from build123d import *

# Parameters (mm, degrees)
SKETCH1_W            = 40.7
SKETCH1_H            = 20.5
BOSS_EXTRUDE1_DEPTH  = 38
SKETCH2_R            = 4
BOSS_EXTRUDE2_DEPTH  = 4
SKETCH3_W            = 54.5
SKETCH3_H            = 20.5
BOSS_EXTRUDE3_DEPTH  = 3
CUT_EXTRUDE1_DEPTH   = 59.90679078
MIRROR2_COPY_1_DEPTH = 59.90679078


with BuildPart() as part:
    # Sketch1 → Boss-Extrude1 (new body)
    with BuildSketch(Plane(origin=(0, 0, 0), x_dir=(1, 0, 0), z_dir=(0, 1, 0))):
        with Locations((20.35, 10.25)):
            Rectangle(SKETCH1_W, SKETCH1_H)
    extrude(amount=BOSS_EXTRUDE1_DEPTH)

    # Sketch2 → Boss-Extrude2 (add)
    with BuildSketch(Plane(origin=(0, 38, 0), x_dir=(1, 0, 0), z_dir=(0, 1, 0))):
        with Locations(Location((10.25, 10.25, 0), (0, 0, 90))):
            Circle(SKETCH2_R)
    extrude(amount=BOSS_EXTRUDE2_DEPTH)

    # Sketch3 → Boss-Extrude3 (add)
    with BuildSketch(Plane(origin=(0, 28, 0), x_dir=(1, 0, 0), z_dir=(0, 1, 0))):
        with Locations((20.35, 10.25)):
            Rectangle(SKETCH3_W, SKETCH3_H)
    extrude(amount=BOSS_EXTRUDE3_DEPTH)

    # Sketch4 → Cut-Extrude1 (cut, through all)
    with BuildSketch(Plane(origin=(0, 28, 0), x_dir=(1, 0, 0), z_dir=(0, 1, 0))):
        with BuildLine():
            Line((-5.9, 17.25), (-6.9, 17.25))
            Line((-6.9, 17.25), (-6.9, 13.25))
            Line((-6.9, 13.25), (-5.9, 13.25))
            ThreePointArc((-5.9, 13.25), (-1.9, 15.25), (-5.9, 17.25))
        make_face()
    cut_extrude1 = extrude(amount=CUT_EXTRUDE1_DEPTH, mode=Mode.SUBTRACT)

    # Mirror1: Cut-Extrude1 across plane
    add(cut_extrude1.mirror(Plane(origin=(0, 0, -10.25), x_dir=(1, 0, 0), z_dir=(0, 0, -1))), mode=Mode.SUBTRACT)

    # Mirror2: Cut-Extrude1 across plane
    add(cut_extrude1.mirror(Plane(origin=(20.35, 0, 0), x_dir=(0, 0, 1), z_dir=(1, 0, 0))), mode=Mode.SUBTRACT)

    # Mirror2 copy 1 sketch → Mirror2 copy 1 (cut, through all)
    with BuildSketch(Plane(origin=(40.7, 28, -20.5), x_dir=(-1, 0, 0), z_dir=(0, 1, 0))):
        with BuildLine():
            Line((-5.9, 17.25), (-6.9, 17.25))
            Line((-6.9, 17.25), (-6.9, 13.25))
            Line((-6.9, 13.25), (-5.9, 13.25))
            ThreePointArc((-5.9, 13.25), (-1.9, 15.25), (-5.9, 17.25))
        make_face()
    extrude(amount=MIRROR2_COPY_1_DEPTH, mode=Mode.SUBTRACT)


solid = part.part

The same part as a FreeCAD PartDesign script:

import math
import FreeCAD as App
import Part
import Sketcher


def add_polygon(sketch, points):
    """Adds a closed chain of lines whose ends are joined by coincident constraints."""
    first, n = sketch.GeometryCount, len(points)
    for a, b in zip(points, points[1:] + points[:1]):
        sketch.addGeometry(Part.LineSegment(App.Vector(*a, 0), App.Vector(*b, 0)), False)
    for i in range(n):
        sketch.addConstraint(Sketcher.Constraint("Coincident", first + i, 2, first + (i + 1) % n, 1))

doc = App.newDocument("Part")
body = doc.addObject("PartDesign::Body", "Body")

# Sketch on XZ plane
sketch1 = body.newObject("Sketcher::SketchObject", "Sketch")
sketch1.AttachmentSupport = (doc.getObject("XZ_Plane"), [""])
sketch1.MapMode = "FlatFace"
add_polygon(sketch1, [(0, -20), (0, 0), (41, 0), (41, -20)])  # lines 0-3
sketch1.addConstraint([
    Sketcher.Constraint("Vertical", 0),
    Sketcher.Constraint("Horizontal", 1),
    Sketcher.Constraint("Vertical", 2),
    Sketcher.Constraint("Horizontal", 3),
    Sketcher.Constraint("Coincident", 0, 2, -1, 1),
    Sketcher.Constraint("DistanceX", 1, 1, 1, 2, 40.7),
    Sketcher.Constraint("DistanceY", 0, 1, 0, 2, 20.5),
])
pad1 = body.newObject("PartDesign::Pad", "Pad")
pad1.Profile = sketch1
pad1.Length = 38
pad1.Reversed = True

# Sketch on XZ plane
sketch2 = body.newObject("Sketcher::SketchObject", "Sketch001")
sketch2.AttachmentSupport = (doc.getObject("XZ_Plane"), [""])
sketch2.MapMode = "FlatFace"
sketch2.AttachmentOffset = App.Placement(App.Vector(0, 0, -38), App.Rotation())
sketch2.addGeometry(Part.Circle(App.Vector(10.2, -10.2, 0), App.Vector(0, 0, 1), 4), False)
sketch2.addConstraint([
    Sketcher.Constraint("Diameter", 0, 8.0),
    Sketcher.Constraint("DistanceX", -1, 1, 0, 3, 10.25),
    Sketcher.Constraint("DistanceY", 0, 3, -1, 1, 10.25),
])
pad2 = body.newObject("PartDesign::Pad", "Pad001")
pad2.Profile = sketch2
pad2.Length = 4
pad2.Reversed = True

# Sketch on XZ plane
sketch3 = body.newObject("Sketcher::SketchObject", "Sketch002")
sketch3.AttachmentSupport = (doc.getObject("XZ_Plane"), [""])
sketch3.MapMode = "FlatFace"
sketch3.AttachmentOffset = App.Placement(App.Vector(0, 0, -28), App.Rotation())
add_polygon(sketch3, [(-7, -20), (-7, 0), (48, 0), (48, -20)])  # lines 0-3
sketch3.addConstraint([
    Sketcher.Constraint("Vertical", 0),
    Sketcher.Constraint("Horizontal", 1),
    Sketcher.Constraint("Vertical", 2),
    Sketcher.Constraint("Horizontal", 3),
    Sketcher.Constraint("PointOnObject", 0, 2, -1),
    Sketcher.Constraint("DistanceX", 1, 1, 1, 2, 54.5),
    Sketcher.Constraint("DistanceY", 0, 1, 0, 2, 20.5),
    Sketcher.Constraint("DistanceX", 0, 2, -1, 1, 6.9),
])
pad3 = body.newObject("PartDesign::Pad", "Pad002")
pad3.Profile = sketch3
pad3.Length = 3
pad3.Reversed = True

# Sketch on XZ plane
sketch4 = body.newObject("Sketcher::SketchObject", "Sketch003")
sketch4.AttachmentSupport = (doc.getObject("XZ_Plane"), [""])
sketch4.MapMode = "FlatFace"
sketch4.AttachmentOffset = App.Placement(App.Vector(0, 0, -28), App.Rotation())
sketch4.addGeometry([
    Part.LineSegment(App.Vector(-5.9, -17.2, 0), App.Vector(-6.9, -17.2, 0)),
    Part.LineSegment(App.Vector(-6.9, -17.2, 0), App.Vector(-6.9, -13.2, 0)),
    Part.LineSegment(App.Vector(-6.9, -13.2, 0), App.Vector(-5.9, -13.2, 0)),
    Part.ArcOfCircle(Part.Circle(App.Vector(-4.4, -15.2, 0), App.Vector(0, 0, 1), 2.5), math.radians(-127), math.radians(127)),
], False)
sketch4.addConstraint([
    Sketcher.Constraint("Coincident", 0, 2, 1, 1),
    Sketcher.Constraint("Coincident", 1, 2, 2, 1),
    Sketcher.Constraint("Coincident", 2, 2, 3, 2),
    Sketcher.Constraint("Coincident", 3, 1, 0, 1),
    Sketcher.Constraint("Horizontal", 0),
    Sketcher.Constraint("Vertical", 1),
    Sketcher.Constraint("Horizontal", 2),
    Sketcher.Constraint("Vertical", 2, 2, 3, 1),
    Sketcher.Constraint("Radius", 3, 2.5),
    Sketcher.Constraint("DistanceX", 0, 2, 0, 1, 1.0),
    Sketcher.Constraint("DistanceY", 1, 1, 1, 2, 4.0),
    Sketcher.Constraint("DistanceX", 3, 3, -1, 1, 4.4),
    Sketcher.Constraint("DistanceY", 3, 3, -1, 1, 15.25),
])
pocket1 = body.newObject("PartDesign::Pocket", "Pocket")
pocket1.Profile = sketch4
pocket1.Type = "ThroughAll"
doc.recompute()

datumplane = body.newObject("PartDesign::Plane", "DatumPlane")
datumplane.AttachmentSupport = (doc.getObject("XY_Plane"), [""])
datumplane.MapMode = "FlatFace"
datumplane.AttachmentOffset = App.Placement(App.Vector(0, 0, -10.25), App.Rotation())
mirrored = body.newObject("PartDesign::Mirrored", "Mirrored")
mirrored.Originals = [pocket1]
mirrored.MirrorPlane = (datumplane, [""])
body.Tip = mirrored
doc.recompute()

datumplane2 = body.newObject("PartDesign::Plane", "DatumPlane001")
datumplane2.AttachmentSupport = (doc.getObject("YZ_Plane"), [""])
datumplane2.MapMode = "FlatFace"
datumplane2.AttachmentOffset = App.Placement(App.Vector(0, 0, 20.35), App.Rotation())
mirrored2 = body.newObject("PartDesign::Mirrored", "Mirrored001")
mirrored2.Originals = [pocket1]
mirrored2.MirrorPlane = (datumplane2, [""])
body.Tip = mirrored2

# Sketch on XZ plane
sketch5 = body.newObject("Sketcher::SketchObject", "Sketch004")
sketch5.AttachmentSupport = (doc.getObject("XZ_Plane"), [""])
sketch5.MapMode = "FlatFace"
sketch5.AttachmentOffset = App.Placement(App.Vector(0, 0, -28), App.Rotation())
sketch5.addGeometry([
    Part.LineSegment(App.Vector(46.6, -3.2, 0), App.Vector(47.6, -3.2, 0)),
    Part.LineSegment(App.Vector(47.6, -3.2, 0), App.Vector(47.6, -7.2, 0)),
    Part.LineSegment(App.Vector(47.6, -7.2, 0), App.Vector(46.6, -7.2, 0)),
    Part.ArcOfCircle(Part.Circle(App.Vector(45.1, -5.2, 0), App.Vector(0, 0, 1), 2.5), math.radians(53), math.radians(307)),
], False)
sketch5.addConstraint([
    Sketcher.Constraint("Coincident", 0, 2, 1, 1),
    Sketcher.Constraint("Coincident", 1, 2, 2, 1),
    Sketcher.Constraint("Coincident", 2, 2, 3, 2),
    Sketcher.Constraint("Coincident", 3, 1, 0, 1),
    Sketcher.Constraint("Horizontal", 0),
    Sketcher.Constraint("Vertical", 1),
    Sketcher.Constraint("Horizontal", 2),
    Sketcher.Constraint("Vertical", 2, 2, 3, 1),
    Sketcher.Constraint("Radius", 3, 2.5),
    Sketcher.Constraint("DistanceX", 0, 1, 0, 2, 1.0),
    Sketcher.Constraint("DistanceY", 1, 2, 1, 1, 4.0),
    Sketcher.Constraint("DistanceX", -1, 1, 3, 3, 45.1),
    Sketcher.Constraint("DistanceY", 3, 3, -1, 1, 5.25),
])
pocket2 = body.newObject("PartDesign::Pocket", "Pocket001")
pocket2.Profile = sketch5
pocket2.Type = "ThroughAll"

doc.recompute()
